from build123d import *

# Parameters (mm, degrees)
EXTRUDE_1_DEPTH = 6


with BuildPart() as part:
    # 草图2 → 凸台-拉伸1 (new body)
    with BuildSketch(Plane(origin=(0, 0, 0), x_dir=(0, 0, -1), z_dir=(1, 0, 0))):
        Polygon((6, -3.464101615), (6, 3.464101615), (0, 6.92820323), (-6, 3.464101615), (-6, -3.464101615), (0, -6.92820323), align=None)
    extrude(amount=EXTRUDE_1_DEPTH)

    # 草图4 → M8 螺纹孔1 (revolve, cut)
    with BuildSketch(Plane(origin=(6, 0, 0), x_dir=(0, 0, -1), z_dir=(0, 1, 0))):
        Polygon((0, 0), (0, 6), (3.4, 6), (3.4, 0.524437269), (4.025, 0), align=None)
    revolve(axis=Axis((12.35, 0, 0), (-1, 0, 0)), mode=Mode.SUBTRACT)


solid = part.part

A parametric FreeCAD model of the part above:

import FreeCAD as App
import Part
import Sketcher
Q = App.Units.Quantity


def add_polygon(sketch, points):
    """Adds a closed chain of lines whose ends are joined by coincident constraints."""
    first, n = sketch.GeometryCount, len(points)
    for a, b in zip(points, points[1:] + points[:1]):
        sketch.addGeometry(Part.LineSegment(App.Vector(*a, 0), App.Vector(*b, 0)), False)
    for i in range(n):
        sketch.addConstraint(Sketcher.Constraint("Coincident", first + i, 2, first + (i + 1) % n, 1))

doc = App.newDocument("Part")
params = doc.addObject("Spreadsheet::Sheet", "Params")
for row, (alias, value) in enumerate([
    ("pad1_length", "6 mm"),
    ("sketch2_width", "6 mm"),
    ("sketch2_height", "3.4 mm"),
    ("groove_angle", "360 deg"),
], start=1):
    params.set(f"A{row}", alias)
    params.set(f"B{row}", "=" + value)
    params.setAlias(f"B{row}", alias)

body = doc.addObject("PartDesign::Body", "Body")

# Sketch on YZ plane
sketch1 = body.newObject("Sketcher::SketchObject", "Sketch")
sketch1.AttachmentSupport = (doc.getObject("YZ_Plane"), [""])
sketch1.MapMode = "FlatFace"
add_polygon(sketch1, [(-3, -6), (3, -6), (7, 0), (3, 6), (-3, 6), (-7, 0)])  # lines 0-5
sketch1.addConstraint([
    Sketcher.Constraint("Horizontal", 0),
    Sketcher.Constraint("Horizontal", 3),
    Sketcher.Constraint("Symmetric", 0, 2, 3, 2, -1, 1),
    Sketcher.Constraint("Symmetric", 1, 2, 4, 2, -1, 1),
    Sketcher.Constraint("PointOnObject", 1, 2, -1),
    Sketcher.Constraint("Parallel", 2, 5),
    Sketcher.Constraint("Vertical", 0, 2, 2, 2),
    Sketcher.Constraint("Angle", 1, Q("60 deg")),
    Sketcher.Constraint("DistanceY", 0, 2, -1, 1, 6.0),
    Sketcher.Constraint("DistanceX", -1, 1, 0, 2, 3.464102),
])
pad1 = body.newObject("PartDesign::Pad", "Pad")
pad1.Profile = sketch1
pad1.setExpression("Length", "Params.pad1_length")

# Sketch on XZ plane
sketch2 = body.newObject("Sketcher::SketchObject", "Sketch001")
sketch2.AttachmentSupport = (doc.getObject("XZ_Plane"), [""])
sketch2.MapMode = "FlatFace"
add_polygon(sketch2, [(0, 0), (6, 0), (6, -4), (5.5, -3.4), (0, -3.4)])  # lines 0-4
sketch2.addConstraint([
    Sketcher.Constraint("Horizontal", 0),
    Sketcher.Constraint("Vertical", 1),
    Sketcher.Constraint("Horizontal", 3),
    Sketcher.Constraint("Vertical", 4),
    Sketcher.Constraint("Coincident", 4, 2, -1, 1),
    Sketcher.Constraint("DistanceX", 0, 1, 0, 2, 6.0),
    Sketcher.Constraint("Angle", 2, Q("130 deg")),
    Sketcher.Constraint("DistanceY", 4, 1, 4, 2, 3.4),
    Sketcher.Constraint("DistanceY", 1, 2, 1, 1, 4.025),
])
sketch2.setExpression("Constraints[10]", "Params.sketch2_width")
sketch2.setExpression("Constraints[12]", "Params.sketch2_height")
groove = body.newObject("PartDesign::Groove", "Groove")
groove.Profile = sketch2
groove.ReferenceAxis = (sketch2, ["H_Axis"])
groove.setExpression("Angle", "Params.groove_angle")

doc.recompute()
